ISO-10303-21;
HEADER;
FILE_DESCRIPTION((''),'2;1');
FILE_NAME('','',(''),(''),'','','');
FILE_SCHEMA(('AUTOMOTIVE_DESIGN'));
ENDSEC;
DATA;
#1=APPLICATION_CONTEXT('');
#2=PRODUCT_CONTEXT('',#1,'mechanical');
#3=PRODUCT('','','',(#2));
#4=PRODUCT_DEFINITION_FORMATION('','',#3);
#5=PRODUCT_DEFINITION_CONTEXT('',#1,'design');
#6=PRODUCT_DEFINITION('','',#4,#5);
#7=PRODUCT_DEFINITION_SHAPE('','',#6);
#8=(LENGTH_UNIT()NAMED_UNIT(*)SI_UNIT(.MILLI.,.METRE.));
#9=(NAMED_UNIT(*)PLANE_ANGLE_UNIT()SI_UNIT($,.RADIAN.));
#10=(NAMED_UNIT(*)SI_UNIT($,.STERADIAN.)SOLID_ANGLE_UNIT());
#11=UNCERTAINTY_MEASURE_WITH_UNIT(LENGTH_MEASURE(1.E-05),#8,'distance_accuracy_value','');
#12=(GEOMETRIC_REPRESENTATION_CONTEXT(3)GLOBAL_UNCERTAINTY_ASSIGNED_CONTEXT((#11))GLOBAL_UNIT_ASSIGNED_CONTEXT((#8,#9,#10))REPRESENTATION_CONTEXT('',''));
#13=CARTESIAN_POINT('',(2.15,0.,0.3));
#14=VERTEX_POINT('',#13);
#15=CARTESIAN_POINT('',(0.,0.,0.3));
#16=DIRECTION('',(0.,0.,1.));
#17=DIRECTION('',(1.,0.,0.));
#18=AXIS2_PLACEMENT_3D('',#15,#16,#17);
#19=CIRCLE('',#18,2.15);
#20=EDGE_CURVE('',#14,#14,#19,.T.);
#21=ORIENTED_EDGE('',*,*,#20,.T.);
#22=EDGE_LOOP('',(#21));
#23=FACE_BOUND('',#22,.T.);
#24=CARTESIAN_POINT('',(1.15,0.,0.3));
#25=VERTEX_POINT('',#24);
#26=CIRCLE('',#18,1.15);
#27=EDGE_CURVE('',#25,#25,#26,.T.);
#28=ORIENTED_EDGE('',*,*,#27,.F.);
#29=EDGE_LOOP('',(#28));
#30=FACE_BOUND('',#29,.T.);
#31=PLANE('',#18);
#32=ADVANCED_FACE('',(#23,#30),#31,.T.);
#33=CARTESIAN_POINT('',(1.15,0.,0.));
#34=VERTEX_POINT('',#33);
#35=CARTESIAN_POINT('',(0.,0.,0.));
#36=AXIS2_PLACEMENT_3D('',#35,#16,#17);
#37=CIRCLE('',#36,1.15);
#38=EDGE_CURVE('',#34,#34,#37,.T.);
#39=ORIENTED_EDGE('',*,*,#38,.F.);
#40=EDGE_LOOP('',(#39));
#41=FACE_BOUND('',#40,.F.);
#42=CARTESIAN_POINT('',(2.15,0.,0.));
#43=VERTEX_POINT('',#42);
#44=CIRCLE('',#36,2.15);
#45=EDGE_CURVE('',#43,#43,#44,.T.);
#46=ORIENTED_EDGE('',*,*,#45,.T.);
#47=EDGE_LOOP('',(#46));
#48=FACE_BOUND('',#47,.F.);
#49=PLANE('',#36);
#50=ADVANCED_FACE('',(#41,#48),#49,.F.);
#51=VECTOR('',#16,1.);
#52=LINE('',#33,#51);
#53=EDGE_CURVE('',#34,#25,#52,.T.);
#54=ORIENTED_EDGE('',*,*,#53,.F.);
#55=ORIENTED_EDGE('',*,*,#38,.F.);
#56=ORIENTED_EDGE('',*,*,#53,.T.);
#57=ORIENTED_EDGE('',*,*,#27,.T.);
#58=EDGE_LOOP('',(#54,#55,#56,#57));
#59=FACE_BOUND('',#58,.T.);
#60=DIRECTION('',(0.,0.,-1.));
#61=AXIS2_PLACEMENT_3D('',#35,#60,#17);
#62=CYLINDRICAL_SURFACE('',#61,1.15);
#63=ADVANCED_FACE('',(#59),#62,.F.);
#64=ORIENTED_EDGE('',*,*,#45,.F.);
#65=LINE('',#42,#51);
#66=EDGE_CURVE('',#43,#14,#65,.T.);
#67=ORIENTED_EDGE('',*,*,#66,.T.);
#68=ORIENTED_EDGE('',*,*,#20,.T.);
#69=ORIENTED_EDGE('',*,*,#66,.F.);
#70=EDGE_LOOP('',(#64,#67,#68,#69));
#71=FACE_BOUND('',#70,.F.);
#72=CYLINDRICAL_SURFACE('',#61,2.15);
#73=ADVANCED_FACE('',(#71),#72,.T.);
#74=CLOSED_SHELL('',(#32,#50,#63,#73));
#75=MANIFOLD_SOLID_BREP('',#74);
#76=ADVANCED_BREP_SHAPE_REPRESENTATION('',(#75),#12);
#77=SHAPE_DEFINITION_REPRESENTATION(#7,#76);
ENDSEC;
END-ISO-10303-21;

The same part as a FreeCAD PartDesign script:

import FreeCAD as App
import Part
import Sketcher
from FreeCAD import Vector

doc = App.newDocument("Part")
params = doc.addObject("Spreadsheet::Sheet", "Params")
for row, (alias, value) in enumerate([
    ("sketch1_diameter", "4.3 mm"),
    ("sketch1_diameter2", "2.3 mm"),
    ("pad1_length", "0.3 mm"),
], start=1):
    params.set(f"A{row}", alias)
    params.set(f"B{row}", "=" + value)
    params.setAlias(f"B{row}", alias)

body = doc.addObject("PartDesign::Body", "Body")

# Sketch on XY plane
sketch1 = body.newObject("Sketcher::SketchObject", "Sketch")
sketch1.AttachmentSupport = (doc.getObject("XY_Plane"), [""])
sketch1.MapMode = "FlatFace"
sketch1.addGeometry(Part.Circle(Vector(0, 0, 0), Vector(0, 0, 1), 2.15), False)
sketch1.addGeometry(Part.Circle(Vector(0, 0, 0), Vector(0, 0, 1), 1.15), False)
sketch1.addConstraint(Sketcher.Constraint("Coincident", 0, 3, -1, 1))
sketch1.addConstraint(Sketcher.Constraint("Coincident", 1, 3, -1, 1))
sketch1.addConstraint(Sketcher.Constraint("Diameter", 0, 4.3))
sketch1.addConstraint(Sketcher.Constraint("Diameter", 1, 2.3))
sketch1.setExpression("Constraints[2]", "Params.sketch1_diameter")
sketch1.setExpression("Constraints[3]", "Params.sketch1_diameter2")
pad1 = body.newObject("PartDesign::Pad", "Pad")
pad1.Profile = sketch1
pad1.setExpression("Length", "Params.pad1_length")

doc.recompute()
